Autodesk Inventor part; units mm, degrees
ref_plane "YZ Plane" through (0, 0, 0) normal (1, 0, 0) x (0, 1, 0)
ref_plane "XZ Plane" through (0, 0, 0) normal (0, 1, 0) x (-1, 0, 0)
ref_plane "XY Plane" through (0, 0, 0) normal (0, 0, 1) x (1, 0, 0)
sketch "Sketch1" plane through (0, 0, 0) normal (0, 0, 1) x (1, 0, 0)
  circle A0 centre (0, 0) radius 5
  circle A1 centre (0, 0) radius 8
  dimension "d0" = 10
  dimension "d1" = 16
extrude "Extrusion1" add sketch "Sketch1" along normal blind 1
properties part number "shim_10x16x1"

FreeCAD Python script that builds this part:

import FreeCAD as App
import Part
import Sketcher
from FreeCAD import Vector
Q = App.Units.Quantity

doc = App.newDocument("Part")
params = doc.addObject("Spreadsheet::Sheet", "Params")
for row, (alias, value) in enumerate([
    ("sketch1_diameter", "16 mm"),
    ("sketch1_diameter2", "10 mm"),
    ("pad1_length", "1 mm"),
], start=1):
    params.set(f"A{row}", alias)
    params.set(f"B{row}", "=" + value)
    params.setAlias(f"B{row}", alias)

body = doc.addObject("PartDesign::Body", "Body")

sketch1 = body.newObject("Sketcher::SketchObject", "Sketch")
sketch1.AttachmentSupport = (doc.getObject("XY_Plane"), [""])
sketch1.MapMode = "FlatFace"
sketch1.addGeometry([
    Part.Circle(Vector(0, 0, 0), Vector(0, 0, 1), 8),
    Part.Circle(Vector(0, 0, 0), Vector(0, 0, 1), 5),
], False)
sketch1.addConstraint([
    Sketcher.Constraint("Coincident", 0, 3, -1, 1),
    Sketcher.Constraint("Coincident", 1, 3, -1, 1),
    Sketcher.Constraint("Diameter", 0, Q("16 mm")),
    Sketcher.Constraint("Diameter", 1, Q("10 mm")),
])
sketch1.setExpression("Constraints[2]", "Params.sketch1_diameter")
sketch1.setExpression("Constraints[3]", "Params.sketch1_diameter2")
pad1 = body.newObject("PartDesign::Pad", "Pad")
pad1.Profile = sketch1
pad1.setExpression("Length", "Params.pad1_length")

doc.recompute()
